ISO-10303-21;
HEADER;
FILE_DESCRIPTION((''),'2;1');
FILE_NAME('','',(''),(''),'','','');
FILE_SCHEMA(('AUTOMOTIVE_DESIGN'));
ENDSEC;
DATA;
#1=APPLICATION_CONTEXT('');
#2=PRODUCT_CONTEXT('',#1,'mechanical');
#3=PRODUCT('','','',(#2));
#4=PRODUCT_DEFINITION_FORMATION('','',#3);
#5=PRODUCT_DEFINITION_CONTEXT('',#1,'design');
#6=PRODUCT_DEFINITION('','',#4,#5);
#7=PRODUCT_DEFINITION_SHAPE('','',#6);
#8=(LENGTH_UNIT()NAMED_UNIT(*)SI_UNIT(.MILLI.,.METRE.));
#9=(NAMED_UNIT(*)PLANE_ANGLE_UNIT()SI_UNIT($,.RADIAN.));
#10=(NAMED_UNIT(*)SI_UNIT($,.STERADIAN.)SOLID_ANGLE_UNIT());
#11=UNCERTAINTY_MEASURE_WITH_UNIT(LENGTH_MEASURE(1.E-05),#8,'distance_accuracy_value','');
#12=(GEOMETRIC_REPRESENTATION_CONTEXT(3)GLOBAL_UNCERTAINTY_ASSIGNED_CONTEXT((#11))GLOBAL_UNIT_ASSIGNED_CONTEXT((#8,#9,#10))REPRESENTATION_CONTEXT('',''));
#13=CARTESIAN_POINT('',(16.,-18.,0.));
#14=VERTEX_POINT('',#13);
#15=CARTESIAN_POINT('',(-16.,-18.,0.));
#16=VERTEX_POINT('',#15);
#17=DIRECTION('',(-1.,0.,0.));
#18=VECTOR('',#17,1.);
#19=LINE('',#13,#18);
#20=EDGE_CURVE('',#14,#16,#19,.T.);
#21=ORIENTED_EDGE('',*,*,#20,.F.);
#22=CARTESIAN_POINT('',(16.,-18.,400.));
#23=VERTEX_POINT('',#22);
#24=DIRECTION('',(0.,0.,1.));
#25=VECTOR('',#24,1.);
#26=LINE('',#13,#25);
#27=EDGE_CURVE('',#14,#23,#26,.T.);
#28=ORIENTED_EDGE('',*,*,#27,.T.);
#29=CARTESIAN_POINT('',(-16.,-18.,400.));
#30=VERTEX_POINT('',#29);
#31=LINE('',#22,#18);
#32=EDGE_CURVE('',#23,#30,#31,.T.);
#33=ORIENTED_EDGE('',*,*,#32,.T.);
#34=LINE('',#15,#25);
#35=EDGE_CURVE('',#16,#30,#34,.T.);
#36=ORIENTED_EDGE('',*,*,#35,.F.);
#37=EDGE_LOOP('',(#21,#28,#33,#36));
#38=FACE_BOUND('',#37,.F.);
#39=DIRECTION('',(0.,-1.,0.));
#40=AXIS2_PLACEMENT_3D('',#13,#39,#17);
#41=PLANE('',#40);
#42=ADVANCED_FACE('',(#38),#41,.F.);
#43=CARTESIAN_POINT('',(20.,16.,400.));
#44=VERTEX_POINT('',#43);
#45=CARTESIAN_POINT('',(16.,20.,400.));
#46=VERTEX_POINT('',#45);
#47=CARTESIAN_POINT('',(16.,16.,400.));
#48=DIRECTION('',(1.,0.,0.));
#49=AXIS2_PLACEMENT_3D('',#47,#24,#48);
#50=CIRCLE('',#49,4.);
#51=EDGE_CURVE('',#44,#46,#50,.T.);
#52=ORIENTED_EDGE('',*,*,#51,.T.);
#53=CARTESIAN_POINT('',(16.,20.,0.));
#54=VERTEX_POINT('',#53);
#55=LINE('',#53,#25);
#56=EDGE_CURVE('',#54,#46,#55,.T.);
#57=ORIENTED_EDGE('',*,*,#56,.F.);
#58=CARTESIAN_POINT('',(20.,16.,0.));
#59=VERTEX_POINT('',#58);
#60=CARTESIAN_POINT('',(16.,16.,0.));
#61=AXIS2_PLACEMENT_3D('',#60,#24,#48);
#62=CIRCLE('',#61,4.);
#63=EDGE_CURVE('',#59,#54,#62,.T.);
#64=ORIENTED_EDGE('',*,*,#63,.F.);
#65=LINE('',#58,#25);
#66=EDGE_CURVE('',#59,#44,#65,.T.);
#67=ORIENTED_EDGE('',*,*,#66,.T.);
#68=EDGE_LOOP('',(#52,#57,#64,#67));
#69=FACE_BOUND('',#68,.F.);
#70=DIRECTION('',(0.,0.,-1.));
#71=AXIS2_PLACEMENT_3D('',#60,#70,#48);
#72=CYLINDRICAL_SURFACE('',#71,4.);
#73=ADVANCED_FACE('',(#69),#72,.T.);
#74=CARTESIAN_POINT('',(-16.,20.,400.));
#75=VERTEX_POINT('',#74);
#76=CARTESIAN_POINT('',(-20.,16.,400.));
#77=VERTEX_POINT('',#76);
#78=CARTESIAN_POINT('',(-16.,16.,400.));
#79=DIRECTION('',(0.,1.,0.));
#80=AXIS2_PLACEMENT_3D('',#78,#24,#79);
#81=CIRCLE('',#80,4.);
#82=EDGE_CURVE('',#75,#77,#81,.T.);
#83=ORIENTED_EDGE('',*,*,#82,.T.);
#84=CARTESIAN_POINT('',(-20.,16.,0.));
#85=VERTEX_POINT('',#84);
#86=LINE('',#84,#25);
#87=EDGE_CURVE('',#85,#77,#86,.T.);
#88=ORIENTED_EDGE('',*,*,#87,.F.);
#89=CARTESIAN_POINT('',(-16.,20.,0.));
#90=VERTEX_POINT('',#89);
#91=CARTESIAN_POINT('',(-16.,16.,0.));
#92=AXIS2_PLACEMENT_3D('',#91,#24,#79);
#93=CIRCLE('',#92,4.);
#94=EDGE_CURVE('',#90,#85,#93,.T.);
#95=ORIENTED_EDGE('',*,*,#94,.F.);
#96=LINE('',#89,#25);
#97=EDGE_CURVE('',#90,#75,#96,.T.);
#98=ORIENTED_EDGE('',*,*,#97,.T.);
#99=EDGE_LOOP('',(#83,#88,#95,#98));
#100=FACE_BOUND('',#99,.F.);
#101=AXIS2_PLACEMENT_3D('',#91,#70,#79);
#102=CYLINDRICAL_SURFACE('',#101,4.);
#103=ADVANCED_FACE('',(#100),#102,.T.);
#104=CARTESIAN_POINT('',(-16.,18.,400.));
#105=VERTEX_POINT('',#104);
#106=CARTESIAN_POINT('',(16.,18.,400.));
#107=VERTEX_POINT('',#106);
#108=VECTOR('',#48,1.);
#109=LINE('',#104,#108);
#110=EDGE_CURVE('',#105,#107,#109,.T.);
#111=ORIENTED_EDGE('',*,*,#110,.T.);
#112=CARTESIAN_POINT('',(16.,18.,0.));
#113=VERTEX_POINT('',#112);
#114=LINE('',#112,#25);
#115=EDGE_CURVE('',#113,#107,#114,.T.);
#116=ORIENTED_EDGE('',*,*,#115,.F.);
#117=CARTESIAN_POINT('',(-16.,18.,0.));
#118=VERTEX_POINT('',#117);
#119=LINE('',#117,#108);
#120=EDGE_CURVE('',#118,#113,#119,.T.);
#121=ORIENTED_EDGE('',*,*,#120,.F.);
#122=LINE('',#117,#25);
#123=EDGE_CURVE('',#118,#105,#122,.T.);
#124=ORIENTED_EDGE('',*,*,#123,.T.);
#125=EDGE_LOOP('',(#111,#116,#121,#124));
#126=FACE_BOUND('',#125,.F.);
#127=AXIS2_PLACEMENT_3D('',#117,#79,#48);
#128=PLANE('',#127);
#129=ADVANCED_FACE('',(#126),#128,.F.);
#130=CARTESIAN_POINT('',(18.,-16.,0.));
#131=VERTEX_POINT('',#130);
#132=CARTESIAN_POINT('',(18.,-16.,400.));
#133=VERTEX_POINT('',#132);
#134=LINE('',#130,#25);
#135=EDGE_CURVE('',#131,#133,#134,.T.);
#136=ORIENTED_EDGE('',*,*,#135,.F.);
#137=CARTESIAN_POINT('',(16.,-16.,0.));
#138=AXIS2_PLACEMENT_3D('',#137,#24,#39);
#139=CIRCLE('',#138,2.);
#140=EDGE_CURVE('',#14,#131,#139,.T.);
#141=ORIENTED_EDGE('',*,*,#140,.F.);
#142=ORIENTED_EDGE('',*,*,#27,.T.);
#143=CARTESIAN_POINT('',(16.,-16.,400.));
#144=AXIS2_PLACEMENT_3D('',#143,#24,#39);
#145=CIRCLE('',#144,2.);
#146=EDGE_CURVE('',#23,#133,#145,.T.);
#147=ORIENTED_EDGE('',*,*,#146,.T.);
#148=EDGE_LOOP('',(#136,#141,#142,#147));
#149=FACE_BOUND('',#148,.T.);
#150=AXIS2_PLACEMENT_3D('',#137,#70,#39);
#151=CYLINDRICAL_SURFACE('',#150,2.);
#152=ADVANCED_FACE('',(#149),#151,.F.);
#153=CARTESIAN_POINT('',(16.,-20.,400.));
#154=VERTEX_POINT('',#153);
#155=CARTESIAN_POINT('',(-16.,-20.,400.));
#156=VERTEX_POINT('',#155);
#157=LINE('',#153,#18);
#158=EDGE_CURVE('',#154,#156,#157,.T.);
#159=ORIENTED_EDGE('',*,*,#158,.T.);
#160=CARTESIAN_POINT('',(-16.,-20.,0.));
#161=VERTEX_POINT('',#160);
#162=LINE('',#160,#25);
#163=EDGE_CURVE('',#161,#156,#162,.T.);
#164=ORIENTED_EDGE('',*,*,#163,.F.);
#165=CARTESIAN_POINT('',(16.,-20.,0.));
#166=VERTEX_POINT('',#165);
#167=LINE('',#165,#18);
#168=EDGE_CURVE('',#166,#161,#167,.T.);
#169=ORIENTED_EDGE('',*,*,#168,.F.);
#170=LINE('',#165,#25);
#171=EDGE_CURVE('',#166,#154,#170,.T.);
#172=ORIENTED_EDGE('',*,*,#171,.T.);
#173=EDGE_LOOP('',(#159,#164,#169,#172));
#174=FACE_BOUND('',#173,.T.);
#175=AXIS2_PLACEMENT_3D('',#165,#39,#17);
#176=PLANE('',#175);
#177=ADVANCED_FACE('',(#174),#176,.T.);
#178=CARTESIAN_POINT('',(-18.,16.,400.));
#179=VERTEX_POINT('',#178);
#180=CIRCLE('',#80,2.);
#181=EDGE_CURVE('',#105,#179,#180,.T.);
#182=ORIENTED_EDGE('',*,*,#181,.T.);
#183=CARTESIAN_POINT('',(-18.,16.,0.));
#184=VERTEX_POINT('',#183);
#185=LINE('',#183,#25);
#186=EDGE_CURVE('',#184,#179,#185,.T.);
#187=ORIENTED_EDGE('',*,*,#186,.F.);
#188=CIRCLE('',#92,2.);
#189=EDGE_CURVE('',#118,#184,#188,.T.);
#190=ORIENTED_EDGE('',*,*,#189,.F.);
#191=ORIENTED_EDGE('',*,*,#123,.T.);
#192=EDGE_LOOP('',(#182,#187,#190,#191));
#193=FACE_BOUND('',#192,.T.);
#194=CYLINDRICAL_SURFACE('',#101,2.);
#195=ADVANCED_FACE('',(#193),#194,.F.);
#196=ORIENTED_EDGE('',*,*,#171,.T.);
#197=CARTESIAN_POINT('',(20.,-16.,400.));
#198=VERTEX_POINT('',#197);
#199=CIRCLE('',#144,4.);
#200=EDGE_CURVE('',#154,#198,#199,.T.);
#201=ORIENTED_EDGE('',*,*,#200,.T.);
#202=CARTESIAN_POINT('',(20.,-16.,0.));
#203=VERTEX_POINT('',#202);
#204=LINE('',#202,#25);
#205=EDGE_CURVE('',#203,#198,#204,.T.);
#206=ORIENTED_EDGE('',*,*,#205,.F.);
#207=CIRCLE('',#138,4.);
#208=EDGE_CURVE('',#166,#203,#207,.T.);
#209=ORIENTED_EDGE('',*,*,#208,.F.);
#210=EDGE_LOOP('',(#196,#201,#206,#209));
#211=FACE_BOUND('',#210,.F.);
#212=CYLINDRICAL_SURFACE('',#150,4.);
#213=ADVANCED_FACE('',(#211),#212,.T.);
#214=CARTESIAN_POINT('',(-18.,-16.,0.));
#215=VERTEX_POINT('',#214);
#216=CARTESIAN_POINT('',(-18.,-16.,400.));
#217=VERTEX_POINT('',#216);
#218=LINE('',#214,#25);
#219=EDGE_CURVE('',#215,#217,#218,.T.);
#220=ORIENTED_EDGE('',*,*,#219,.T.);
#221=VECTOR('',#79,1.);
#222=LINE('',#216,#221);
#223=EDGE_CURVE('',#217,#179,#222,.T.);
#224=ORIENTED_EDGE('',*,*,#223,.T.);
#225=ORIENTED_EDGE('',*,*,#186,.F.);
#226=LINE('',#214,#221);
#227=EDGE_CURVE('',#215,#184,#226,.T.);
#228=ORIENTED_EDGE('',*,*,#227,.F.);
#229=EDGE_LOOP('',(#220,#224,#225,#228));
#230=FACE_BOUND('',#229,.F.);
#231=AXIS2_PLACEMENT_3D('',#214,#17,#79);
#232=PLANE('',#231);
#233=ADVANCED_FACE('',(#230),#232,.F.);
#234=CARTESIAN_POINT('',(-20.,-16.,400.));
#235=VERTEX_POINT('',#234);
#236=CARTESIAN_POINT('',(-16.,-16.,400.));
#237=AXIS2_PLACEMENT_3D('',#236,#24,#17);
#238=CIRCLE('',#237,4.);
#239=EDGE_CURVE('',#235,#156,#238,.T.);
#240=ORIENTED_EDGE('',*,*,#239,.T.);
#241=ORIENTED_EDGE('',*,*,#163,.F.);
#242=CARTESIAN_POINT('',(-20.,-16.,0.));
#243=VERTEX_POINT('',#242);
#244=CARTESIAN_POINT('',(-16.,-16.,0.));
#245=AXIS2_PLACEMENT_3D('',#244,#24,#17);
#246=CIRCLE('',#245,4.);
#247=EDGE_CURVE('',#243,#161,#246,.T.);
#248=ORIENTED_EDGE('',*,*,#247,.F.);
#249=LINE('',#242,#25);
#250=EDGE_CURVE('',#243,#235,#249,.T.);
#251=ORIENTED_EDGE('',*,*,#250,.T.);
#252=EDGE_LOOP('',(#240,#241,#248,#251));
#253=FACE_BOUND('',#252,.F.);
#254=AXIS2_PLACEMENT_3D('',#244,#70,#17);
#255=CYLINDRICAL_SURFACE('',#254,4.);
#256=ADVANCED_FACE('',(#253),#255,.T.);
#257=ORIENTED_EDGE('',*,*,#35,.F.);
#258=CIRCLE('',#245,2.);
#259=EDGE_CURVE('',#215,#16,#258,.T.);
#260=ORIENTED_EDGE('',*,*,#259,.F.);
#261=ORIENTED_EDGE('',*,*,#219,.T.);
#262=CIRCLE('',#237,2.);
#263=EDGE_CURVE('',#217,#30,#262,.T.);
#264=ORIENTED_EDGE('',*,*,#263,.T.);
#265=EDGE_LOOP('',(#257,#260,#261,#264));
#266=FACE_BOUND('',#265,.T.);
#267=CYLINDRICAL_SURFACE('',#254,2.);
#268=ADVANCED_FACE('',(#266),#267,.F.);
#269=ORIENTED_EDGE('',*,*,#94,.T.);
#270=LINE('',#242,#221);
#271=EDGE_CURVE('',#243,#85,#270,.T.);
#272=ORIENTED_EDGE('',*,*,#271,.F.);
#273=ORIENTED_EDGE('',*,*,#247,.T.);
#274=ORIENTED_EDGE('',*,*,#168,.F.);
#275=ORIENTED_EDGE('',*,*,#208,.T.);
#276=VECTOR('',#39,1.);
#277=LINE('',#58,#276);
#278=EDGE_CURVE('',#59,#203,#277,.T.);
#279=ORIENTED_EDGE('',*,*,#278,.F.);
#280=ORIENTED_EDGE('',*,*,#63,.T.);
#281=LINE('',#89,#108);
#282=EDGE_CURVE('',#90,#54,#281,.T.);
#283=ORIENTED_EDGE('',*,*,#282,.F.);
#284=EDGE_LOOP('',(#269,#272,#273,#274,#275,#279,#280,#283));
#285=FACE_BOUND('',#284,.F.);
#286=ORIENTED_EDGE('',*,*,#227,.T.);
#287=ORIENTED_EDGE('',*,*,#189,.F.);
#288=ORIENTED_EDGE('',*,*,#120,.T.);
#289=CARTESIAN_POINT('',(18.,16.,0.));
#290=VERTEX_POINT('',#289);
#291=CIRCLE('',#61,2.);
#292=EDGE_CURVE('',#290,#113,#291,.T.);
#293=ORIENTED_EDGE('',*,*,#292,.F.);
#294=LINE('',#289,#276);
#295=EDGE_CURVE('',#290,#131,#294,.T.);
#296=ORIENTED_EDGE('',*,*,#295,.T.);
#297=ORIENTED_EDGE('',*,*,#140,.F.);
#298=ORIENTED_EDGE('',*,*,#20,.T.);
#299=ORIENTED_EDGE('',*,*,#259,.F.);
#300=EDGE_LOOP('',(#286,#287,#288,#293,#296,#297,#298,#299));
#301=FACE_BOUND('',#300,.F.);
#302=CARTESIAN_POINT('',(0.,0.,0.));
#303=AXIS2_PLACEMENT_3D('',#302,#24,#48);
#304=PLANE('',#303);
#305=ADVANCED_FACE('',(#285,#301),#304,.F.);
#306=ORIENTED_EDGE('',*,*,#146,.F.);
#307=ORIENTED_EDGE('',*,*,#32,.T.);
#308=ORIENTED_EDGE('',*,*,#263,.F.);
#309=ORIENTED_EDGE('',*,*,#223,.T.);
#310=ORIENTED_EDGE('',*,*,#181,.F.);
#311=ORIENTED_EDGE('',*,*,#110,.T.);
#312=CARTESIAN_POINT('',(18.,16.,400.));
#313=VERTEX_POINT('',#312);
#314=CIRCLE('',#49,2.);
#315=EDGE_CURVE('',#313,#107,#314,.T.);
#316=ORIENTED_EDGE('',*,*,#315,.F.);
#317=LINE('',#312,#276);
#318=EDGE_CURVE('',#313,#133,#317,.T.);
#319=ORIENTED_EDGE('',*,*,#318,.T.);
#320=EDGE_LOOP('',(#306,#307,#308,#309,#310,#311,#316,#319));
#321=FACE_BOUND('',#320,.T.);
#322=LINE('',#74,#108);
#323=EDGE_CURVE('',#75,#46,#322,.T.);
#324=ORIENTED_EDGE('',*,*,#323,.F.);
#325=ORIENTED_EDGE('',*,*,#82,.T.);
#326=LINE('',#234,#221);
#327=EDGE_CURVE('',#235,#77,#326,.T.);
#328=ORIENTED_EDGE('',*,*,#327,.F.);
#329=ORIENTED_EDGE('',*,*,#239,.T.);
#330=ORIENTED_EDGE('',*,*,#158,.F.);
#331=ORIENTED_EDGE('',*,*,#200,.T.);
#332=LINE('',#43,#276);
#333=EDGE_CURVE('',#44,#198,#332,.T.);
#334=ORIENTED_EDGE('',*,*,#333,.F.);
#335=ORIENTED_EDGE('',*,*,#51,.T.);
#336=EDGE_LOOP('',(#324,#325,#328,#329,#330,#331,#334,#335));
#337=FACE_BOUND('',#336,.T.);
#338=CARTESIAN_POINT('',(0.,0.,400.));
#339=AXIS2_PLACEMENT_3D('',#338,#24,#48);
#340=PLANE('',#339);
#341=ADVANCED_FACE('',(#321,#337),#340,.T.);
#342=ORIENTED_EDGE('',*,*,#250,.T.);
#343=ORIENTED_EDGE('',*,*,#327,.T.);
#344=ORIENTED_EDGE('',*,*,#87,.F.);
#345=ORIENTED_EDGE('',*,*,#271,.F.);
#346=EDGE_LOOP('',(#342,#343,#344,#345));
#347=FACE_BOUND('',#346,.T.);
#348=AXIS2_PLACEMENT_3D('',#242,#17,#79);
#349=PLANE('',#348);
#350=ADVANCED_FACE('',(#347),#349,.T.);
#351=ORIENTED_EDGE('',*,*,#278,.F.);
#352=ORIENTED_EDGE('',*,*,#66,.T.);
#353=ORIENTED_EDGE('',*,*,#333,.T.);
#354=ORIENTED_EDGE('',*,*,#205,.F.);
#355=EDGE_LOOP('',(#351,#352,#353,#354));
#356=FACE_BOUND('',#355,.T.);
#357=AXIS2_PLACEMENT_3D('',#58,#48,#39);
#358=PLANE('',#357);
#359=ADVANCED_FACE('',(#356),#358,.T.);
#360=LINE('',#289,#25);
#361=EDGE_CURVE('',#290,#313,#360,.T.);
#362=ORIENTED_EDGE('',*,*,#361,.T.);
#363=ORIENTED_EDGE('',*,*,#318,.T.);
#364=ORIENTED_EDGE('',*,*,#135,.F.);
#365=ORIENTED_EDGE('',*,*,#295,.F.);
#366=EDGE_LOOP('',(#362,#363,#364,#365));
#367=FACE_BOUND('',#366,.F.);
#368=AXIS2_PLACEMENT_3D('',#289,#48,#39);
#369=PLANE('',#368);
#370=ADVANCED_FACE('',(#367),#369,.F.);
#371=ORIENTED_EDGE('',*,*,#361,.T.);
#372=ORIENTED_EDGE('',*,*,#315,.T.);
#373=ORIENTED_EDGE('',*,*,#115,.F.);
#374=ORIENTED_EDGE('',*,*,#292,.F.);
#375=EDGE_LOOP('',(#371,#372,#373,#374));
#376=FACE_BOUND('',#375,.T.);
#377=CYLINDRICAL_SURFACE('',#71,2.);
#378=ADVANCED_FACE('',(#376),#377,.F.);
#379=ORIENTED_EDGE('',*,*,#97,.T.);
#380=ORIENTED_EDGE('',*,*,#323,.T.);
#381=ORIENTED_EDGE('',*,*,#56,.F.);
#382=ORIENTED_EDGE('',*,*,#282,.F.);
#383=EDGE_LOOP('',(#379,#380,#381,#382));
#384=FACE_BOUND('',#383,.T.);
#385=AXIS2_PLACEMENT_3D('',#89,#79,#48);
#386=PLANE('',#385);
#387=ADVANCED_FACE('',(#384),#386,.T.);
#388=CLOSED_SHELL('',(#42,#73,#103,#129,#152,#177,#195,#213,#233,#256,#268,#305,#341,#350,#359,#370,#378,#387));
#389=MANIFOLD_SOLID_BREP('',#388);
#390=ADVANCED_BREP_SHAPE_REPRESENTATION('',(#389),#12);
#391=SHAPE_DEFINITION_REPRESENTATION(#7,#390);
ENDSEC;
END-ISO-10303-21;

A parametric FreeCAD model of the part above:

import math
import FreeCAD as App
import Part
import Sketcher
from FreeCAD import Vector

doc = App.newDocument("Part")
body = doc.addObject("PartDesign::Body", "Body")

# Sketch on XY plane
sketch1 = body.newObject("Sketcher::SketchObject", "Sketch")
sketch1.AttachmentSupport = (doc.getObject("XY_Plane"), [""])
sketch1.MapMode = "FlatFace"
sketch1.addGeometry([
    Part.LineSegment(Vector(-20, 16, 0), Vector(-20, -16, 0)),  # 0
    Part.ArcOfCircle(Part.Circle(Vector(-16, -16, 0), Vector(0, 0, 1), 4), math.radians(180), math.radians(270)),  # 1
    Part.LineSegment(Vector(-16, -20, 0), Vector(16, -20, 0)),  # 2
    Part.ArcOfCircle(Part.Circle(Vector(16, -16, 0), Vector(0, 0, 1), 4), math.radians(-90), math.radians(0)),  # 3
    Part.LineSegment(Vector(20, -16, 0), Vector(20, 16, 0)),  # 4
    Part.ArcOfCircle(Part.Circle(Vector(16, 16, 0), Vector(0, 0, 1), 4), math.radians(0), math.radians(90)),  # 5
    Part.LineSegment(Vector(16, 20, 0), Vector(-16, 20, 0)),  # 6
    Part.ArcOfCircle(Part.Circle(Vector(-16, 16, 0), Vector(0, 0, 1), 4), math.radians(90), math.radians(180)),  # 7
    Part.ArcOfCircle(Part.Circle(Vector(-16, 16, 0), Vector(0, 0, 1), 2), math.radians(90), math.radians(180)),  # 8
    Part.LineSegment(Vector(-16, 18, 0), Vector(16, 18, 0)),  # 9
    Part.ArcOfCircle(Part.Circle(Vector(16, 16, 0), Vector(0, 0, 1), 2), math.radians(0), math.radians(90)),  # 10
    Part.LineSegment(Vector(18, 16, 0), Vector(18, -16, 0)),  # 11
    Part.ArcOfCircle(Part.Circle(Vector(16, -16, 0), Vector(0, 0, 1), 2), math.radians(-90), math.radians(0)),  # 12
    Part.LineSegment(Vector(16, -18, 0), Vector(-16, -18, 0)),  # 13
    Part.ArcOfCircle(Part.Circle(Vector(-16, -16, 0), Vector(0, 0, 1), 2), math.radians(180), math.radians(270)),  # 14
    Part.LineSegment(Vector(-18, -16, 0), Vector(-18, 16, 0)),  # 15
], False)
sketch1.addConstraint([
    Sketcher.Constraint("Tangent", 0, 2, 1, 1),
    Sketcher.Constraint("Tangent", 1, 2, 2, 1),
    Sketcher.Constraint("Tangent", 2, 2, 3, 1),
    Sketcher.Constraint("Tangent", 3, 2, 4, 1),
    Sketcher.Constraint("Tangent", 4, 2, 5, 1),
    Sketcher.Constraint("Tangent", 5, 2, 6, 1),
    Sketcher.Constraint("Tangent", 6, 2, 7, 1),
    Sketcher.Constraint("Tangent", 7, 2, 0, 1),
    Sketcher.Constraint("Tangent", 8, 1, 9, 1),
    Sketcher.Constraint("Tangent", 9, 2, 10, 2),
    Sketcher.Constraint("Tangent", 10, 1, 11, 1),
    Sketcher.Constraint("Tangent", 11, 2, 12, 2),
    Sketcher.Constraint("Tangent", 12, 1, 13, 1),
    Sketcher.Constraint("Tangent", 13, 2, 14, 2),
    Sketcher.Constraint("Tangent", 14, 1, 15, 1),
    Sketcher.Constraint("Tangent", 15, 2, 8, 2),
    Sketcher.Constraint("Vertical", 0),
    Sketcher.Constraint("Horizontal", 2),
    Sketcher.Constraint("Vertical", 4),
    Sketcher.Constraint("Horizontal", 6),
    Sketcher.Constraint("Horizontal", 9),
    Sketcher.Constraint("Vertical", 11),
    Sketcher.Constraint("Horizontal", 13),
    Sketcher.Constraint("Vertical", 15),
    Sketcher.Constraint("Coincident", 8, 3, 7, 3),
    Sketcher.Constraint("Coincident", 10, 3, 5, 3),
    Sketcher.Constraint("Coincident", 12, 3, 3, 3),
    Sketcher.Constraint("Equal", 1, 3),
    Sketcher.Constraint("Equal", 3, 5),
    Sketcher.Constraint("Equal", 5, 7),
    Sketcher.Constraint("Equal", 12, 14),
    Sketcher.Constraint("Symmetric", 1, 3, 5, 3, -1, 1),
    Sketcher.Constraint("Equal", 13, 0),
    Sketcher.Constraint("Radius", 1, 4.0),
    Sketcher.Constraint("Radius", 8, 2.0),
    Sketcher.Constraint("DistanceX", 0, 2, -1, 1, 20.0),
])
pad1 = body.newObject("PartDesign::Pad", "Pad")
pad1.Profile = sketch1
pad1.Length = 400

doc.recompute()
